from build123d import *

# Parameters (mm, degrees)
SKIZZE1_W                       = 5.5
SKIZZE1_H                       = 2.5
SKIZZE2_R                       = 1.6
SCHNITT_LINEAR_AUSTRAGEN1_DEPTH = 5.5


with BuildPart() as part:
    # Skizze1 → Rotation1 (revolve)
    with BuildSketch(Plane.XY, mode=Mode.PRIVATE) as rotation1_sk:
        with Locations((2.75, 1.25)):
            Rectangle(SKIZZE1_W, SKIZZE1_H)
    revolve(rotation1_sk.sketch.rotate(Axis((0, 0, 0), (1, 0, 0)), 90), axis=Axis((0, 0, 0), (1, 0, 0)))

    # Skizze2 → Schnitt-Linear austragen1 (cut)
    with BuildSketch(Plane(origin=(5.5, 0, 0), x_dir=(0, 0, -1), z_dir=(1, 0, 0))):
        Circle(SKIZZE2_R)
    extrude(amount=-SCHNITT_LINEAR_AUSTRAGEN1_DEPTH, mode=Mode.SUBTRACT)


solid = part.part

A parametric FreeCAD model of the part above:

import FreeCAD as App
import Part
import Sketcher


def add_polygon(sketch, points):
    """Adds a closed chain of lines whose ends are joined by coincident constraints."""
    first, n = sketch.GeometryCount, len(points)
    for a, b in zip(points, points[1:] + points[:1]):
        sketch.addGeometry(Part.LineSegment(App.Vector(*a, 0), App.Vector(*b, 0)), False)
    for i in range(n):
        sketch.addConstraint(Sketcher.Constraint("Coincident", first + i, 2, first + (i + 1) % n, 1))

doc = App.newDocument("Part")
body = doc.addObject("PartDesign::Body", "Body")

# Sketch on XY plane
sketch1 = body.newObject("Sketcher::SketchObject", "Sketch")
sketch1.AttachmentSupport = (doc.getObject("XY_Plane"), [""])
sketch1.MapMode = "FlatFace"
add_polygon(sketch1, [(0, 2.5), (0, 0), (5.5, 0), (5.5, 2.5)])  # lines 0-3
sketch1.addConstraint([
    Sketcher.Constraint("Vertical", 0),
    Sketcher.Constraint("Horizontal", 1),
    Sketcher.Constraint("Vertical", 2),
    Sketcher.Constraint("Horizontal", 3),
    Sketcher.Constraint("Coincident", 0, 2, -1, 1),
    Sketcher.Constraint("DistanceX", 1, 1, 1, 2, 5.5),
    Sketcher.Constraint("DistanceY", 0, 2, 0, 1, 2.5),
])
revolution = body.newObject("PartDesign::Revolution", "Revolution")
revolution.Profile = sketch1
revolution.ReferenceAxis = (sketch1, ["H_Axis"])
revolution.Angle = 360

# Sketch on YZ plane
sketch2 = body.newObject("Sketcher::SketchObject", "Sketch001")
sketch2.AttachmentSupport = (doc.getObject("YZ_Plane"), [""])
sketch2.MapMode = "FlatFace"
sketch2.AttachmentOffset = App.Placement(App.Vector(0, 0, 5.5), App.Rotation())
sketch2.addGeometry(Part.Circle(App.Vector(0, 0, 0), App.Vector(0, 0, 1), 1.6), False)
sketch2.addConstraint([
    Sketcher.Constraint("Coincident", 0, 3, -1, 1),
    Sketcher.Constraint("Diameter", 0, 3.2),
])
pocket1 = body.newObject("PartDesign::Pocket", "Pocket")
pocket1.Profile = sketch2
pocket1.Length = 5.5

doc.recompute()
